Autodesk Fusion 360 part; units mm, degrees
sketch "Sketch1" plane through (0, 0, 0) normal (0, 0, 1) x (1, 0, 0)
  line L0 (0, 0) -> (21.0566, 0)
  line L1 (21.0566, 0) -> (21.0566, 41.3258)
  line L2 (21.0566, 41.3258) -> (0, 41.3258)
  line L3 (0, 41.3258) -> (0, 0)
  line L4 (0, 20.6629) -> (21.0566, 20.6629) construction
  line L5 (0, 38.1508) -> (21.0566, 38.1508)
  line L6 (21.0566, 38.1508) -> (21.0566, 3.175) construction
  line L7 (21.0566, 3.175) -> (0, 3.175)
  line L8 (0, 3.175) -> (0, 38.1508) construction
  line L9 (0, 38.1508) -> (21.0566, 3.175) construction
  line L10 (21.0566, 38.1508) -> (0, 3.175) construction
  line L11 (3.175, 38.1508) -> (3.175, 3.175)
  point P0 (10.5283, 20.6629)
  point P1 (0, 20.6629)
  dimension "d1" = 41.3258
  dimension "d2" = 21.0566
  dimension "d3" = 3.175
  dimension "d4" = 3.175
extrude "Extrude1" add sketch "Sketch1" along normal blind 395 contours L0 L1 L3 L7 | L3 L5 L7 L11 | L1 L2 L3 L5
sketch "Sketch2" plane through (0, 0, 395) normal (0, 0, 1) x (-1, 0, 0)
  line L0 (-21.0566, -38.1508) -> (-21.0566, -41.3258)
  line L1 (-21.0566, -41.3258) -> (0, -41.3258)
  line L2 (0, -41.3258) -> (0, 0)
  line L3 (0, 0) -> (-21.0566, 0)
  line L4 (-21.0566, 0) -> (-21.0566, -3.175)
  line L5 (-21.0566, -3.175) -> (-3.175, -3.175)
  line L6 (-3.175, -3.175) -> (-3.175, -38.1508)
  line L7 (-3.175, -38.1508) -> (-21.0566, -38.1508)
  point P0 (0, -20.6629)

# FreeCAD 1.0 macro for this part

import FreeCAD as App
import Part
import Sketcher

V = App.Vector
Q = App.Units.Quantity


def add_polygon(sketch, points):
    """Adds a closed chain of lines whose ends are joined by coincident constraints."""
    first, n = sketch.GeometryCount, len(points)
    for a, b in zip(points, points[1:] + points[:1]):
        sketch.addGeometry(Part.LineSegment(App.Vector(*a, 0), App.Vector(*b, 0)), False)
    for i in range(n):
        sketch.addConstraint(Sketcher.Constraint("Coincident", first + i, 2, first + (i + 1) % n, 1))

doc = App.newDocument("Part")
body = doc.addObject("PartDesign::Body", "Body")

sketch1 = body.newObject("Sketcher::SketchObject", "Sketch")
sketch1.AttachmentSupport = (doc.getObject("XY_Plane"), [""])
sketch1.MapMode = "FlatFace"
add_polygon(sketch1, [(0, 0), (21.1, 0), (21.1, 3.2), (3.2, 3.2), (3.2, 38.2), (21.1, 38.2), (21.1, 41.3), (0, 41.3)])
sketch1.addConstraint([
    Sketcher.Constraint("Horizontal", 0),
    Sketcher.Constraint("Vertical", 1),
    Sketcher.Constraint("Horizontal", 2),
    Sketcher.Constraint("Vertical", 3),
    Sketcher.Constraint("Horizontal", 4),
    Sketcher.Constraint("Vertical", 5),
    Sketcher.Constraint("Horizontal", 6),
    Sketcher.Constraint("Vertical", 7),
    Sketcher.Constraint("Coincident", 7, 2, -1, 1),
    Sketcher.Constraint("Vertical", 1, 2, 4, 2),
    Sketcher.Constraint("Equal", 1, 5),
    Sketcher.Constraint("DistanceX", 0, 1, 0, 2, Q("0.829 in")),
    Sketcher.Constraint("DistanceY", 1, 1, 1, 2, Q("0.125 in")),
    Sketcher.Constraint("DistanceY", 7, 2, 7, 1, Q("1.627 in")),
    Sketcher.Constraint("DistanceX", -1, 1, 2, 2, Q("0.125 in")),
])
pad1 = body.newObject("PartDesign::Pad", "Pad")
pad1.Profile = sketch1
pad1.Length = 395

doc.recompute()
